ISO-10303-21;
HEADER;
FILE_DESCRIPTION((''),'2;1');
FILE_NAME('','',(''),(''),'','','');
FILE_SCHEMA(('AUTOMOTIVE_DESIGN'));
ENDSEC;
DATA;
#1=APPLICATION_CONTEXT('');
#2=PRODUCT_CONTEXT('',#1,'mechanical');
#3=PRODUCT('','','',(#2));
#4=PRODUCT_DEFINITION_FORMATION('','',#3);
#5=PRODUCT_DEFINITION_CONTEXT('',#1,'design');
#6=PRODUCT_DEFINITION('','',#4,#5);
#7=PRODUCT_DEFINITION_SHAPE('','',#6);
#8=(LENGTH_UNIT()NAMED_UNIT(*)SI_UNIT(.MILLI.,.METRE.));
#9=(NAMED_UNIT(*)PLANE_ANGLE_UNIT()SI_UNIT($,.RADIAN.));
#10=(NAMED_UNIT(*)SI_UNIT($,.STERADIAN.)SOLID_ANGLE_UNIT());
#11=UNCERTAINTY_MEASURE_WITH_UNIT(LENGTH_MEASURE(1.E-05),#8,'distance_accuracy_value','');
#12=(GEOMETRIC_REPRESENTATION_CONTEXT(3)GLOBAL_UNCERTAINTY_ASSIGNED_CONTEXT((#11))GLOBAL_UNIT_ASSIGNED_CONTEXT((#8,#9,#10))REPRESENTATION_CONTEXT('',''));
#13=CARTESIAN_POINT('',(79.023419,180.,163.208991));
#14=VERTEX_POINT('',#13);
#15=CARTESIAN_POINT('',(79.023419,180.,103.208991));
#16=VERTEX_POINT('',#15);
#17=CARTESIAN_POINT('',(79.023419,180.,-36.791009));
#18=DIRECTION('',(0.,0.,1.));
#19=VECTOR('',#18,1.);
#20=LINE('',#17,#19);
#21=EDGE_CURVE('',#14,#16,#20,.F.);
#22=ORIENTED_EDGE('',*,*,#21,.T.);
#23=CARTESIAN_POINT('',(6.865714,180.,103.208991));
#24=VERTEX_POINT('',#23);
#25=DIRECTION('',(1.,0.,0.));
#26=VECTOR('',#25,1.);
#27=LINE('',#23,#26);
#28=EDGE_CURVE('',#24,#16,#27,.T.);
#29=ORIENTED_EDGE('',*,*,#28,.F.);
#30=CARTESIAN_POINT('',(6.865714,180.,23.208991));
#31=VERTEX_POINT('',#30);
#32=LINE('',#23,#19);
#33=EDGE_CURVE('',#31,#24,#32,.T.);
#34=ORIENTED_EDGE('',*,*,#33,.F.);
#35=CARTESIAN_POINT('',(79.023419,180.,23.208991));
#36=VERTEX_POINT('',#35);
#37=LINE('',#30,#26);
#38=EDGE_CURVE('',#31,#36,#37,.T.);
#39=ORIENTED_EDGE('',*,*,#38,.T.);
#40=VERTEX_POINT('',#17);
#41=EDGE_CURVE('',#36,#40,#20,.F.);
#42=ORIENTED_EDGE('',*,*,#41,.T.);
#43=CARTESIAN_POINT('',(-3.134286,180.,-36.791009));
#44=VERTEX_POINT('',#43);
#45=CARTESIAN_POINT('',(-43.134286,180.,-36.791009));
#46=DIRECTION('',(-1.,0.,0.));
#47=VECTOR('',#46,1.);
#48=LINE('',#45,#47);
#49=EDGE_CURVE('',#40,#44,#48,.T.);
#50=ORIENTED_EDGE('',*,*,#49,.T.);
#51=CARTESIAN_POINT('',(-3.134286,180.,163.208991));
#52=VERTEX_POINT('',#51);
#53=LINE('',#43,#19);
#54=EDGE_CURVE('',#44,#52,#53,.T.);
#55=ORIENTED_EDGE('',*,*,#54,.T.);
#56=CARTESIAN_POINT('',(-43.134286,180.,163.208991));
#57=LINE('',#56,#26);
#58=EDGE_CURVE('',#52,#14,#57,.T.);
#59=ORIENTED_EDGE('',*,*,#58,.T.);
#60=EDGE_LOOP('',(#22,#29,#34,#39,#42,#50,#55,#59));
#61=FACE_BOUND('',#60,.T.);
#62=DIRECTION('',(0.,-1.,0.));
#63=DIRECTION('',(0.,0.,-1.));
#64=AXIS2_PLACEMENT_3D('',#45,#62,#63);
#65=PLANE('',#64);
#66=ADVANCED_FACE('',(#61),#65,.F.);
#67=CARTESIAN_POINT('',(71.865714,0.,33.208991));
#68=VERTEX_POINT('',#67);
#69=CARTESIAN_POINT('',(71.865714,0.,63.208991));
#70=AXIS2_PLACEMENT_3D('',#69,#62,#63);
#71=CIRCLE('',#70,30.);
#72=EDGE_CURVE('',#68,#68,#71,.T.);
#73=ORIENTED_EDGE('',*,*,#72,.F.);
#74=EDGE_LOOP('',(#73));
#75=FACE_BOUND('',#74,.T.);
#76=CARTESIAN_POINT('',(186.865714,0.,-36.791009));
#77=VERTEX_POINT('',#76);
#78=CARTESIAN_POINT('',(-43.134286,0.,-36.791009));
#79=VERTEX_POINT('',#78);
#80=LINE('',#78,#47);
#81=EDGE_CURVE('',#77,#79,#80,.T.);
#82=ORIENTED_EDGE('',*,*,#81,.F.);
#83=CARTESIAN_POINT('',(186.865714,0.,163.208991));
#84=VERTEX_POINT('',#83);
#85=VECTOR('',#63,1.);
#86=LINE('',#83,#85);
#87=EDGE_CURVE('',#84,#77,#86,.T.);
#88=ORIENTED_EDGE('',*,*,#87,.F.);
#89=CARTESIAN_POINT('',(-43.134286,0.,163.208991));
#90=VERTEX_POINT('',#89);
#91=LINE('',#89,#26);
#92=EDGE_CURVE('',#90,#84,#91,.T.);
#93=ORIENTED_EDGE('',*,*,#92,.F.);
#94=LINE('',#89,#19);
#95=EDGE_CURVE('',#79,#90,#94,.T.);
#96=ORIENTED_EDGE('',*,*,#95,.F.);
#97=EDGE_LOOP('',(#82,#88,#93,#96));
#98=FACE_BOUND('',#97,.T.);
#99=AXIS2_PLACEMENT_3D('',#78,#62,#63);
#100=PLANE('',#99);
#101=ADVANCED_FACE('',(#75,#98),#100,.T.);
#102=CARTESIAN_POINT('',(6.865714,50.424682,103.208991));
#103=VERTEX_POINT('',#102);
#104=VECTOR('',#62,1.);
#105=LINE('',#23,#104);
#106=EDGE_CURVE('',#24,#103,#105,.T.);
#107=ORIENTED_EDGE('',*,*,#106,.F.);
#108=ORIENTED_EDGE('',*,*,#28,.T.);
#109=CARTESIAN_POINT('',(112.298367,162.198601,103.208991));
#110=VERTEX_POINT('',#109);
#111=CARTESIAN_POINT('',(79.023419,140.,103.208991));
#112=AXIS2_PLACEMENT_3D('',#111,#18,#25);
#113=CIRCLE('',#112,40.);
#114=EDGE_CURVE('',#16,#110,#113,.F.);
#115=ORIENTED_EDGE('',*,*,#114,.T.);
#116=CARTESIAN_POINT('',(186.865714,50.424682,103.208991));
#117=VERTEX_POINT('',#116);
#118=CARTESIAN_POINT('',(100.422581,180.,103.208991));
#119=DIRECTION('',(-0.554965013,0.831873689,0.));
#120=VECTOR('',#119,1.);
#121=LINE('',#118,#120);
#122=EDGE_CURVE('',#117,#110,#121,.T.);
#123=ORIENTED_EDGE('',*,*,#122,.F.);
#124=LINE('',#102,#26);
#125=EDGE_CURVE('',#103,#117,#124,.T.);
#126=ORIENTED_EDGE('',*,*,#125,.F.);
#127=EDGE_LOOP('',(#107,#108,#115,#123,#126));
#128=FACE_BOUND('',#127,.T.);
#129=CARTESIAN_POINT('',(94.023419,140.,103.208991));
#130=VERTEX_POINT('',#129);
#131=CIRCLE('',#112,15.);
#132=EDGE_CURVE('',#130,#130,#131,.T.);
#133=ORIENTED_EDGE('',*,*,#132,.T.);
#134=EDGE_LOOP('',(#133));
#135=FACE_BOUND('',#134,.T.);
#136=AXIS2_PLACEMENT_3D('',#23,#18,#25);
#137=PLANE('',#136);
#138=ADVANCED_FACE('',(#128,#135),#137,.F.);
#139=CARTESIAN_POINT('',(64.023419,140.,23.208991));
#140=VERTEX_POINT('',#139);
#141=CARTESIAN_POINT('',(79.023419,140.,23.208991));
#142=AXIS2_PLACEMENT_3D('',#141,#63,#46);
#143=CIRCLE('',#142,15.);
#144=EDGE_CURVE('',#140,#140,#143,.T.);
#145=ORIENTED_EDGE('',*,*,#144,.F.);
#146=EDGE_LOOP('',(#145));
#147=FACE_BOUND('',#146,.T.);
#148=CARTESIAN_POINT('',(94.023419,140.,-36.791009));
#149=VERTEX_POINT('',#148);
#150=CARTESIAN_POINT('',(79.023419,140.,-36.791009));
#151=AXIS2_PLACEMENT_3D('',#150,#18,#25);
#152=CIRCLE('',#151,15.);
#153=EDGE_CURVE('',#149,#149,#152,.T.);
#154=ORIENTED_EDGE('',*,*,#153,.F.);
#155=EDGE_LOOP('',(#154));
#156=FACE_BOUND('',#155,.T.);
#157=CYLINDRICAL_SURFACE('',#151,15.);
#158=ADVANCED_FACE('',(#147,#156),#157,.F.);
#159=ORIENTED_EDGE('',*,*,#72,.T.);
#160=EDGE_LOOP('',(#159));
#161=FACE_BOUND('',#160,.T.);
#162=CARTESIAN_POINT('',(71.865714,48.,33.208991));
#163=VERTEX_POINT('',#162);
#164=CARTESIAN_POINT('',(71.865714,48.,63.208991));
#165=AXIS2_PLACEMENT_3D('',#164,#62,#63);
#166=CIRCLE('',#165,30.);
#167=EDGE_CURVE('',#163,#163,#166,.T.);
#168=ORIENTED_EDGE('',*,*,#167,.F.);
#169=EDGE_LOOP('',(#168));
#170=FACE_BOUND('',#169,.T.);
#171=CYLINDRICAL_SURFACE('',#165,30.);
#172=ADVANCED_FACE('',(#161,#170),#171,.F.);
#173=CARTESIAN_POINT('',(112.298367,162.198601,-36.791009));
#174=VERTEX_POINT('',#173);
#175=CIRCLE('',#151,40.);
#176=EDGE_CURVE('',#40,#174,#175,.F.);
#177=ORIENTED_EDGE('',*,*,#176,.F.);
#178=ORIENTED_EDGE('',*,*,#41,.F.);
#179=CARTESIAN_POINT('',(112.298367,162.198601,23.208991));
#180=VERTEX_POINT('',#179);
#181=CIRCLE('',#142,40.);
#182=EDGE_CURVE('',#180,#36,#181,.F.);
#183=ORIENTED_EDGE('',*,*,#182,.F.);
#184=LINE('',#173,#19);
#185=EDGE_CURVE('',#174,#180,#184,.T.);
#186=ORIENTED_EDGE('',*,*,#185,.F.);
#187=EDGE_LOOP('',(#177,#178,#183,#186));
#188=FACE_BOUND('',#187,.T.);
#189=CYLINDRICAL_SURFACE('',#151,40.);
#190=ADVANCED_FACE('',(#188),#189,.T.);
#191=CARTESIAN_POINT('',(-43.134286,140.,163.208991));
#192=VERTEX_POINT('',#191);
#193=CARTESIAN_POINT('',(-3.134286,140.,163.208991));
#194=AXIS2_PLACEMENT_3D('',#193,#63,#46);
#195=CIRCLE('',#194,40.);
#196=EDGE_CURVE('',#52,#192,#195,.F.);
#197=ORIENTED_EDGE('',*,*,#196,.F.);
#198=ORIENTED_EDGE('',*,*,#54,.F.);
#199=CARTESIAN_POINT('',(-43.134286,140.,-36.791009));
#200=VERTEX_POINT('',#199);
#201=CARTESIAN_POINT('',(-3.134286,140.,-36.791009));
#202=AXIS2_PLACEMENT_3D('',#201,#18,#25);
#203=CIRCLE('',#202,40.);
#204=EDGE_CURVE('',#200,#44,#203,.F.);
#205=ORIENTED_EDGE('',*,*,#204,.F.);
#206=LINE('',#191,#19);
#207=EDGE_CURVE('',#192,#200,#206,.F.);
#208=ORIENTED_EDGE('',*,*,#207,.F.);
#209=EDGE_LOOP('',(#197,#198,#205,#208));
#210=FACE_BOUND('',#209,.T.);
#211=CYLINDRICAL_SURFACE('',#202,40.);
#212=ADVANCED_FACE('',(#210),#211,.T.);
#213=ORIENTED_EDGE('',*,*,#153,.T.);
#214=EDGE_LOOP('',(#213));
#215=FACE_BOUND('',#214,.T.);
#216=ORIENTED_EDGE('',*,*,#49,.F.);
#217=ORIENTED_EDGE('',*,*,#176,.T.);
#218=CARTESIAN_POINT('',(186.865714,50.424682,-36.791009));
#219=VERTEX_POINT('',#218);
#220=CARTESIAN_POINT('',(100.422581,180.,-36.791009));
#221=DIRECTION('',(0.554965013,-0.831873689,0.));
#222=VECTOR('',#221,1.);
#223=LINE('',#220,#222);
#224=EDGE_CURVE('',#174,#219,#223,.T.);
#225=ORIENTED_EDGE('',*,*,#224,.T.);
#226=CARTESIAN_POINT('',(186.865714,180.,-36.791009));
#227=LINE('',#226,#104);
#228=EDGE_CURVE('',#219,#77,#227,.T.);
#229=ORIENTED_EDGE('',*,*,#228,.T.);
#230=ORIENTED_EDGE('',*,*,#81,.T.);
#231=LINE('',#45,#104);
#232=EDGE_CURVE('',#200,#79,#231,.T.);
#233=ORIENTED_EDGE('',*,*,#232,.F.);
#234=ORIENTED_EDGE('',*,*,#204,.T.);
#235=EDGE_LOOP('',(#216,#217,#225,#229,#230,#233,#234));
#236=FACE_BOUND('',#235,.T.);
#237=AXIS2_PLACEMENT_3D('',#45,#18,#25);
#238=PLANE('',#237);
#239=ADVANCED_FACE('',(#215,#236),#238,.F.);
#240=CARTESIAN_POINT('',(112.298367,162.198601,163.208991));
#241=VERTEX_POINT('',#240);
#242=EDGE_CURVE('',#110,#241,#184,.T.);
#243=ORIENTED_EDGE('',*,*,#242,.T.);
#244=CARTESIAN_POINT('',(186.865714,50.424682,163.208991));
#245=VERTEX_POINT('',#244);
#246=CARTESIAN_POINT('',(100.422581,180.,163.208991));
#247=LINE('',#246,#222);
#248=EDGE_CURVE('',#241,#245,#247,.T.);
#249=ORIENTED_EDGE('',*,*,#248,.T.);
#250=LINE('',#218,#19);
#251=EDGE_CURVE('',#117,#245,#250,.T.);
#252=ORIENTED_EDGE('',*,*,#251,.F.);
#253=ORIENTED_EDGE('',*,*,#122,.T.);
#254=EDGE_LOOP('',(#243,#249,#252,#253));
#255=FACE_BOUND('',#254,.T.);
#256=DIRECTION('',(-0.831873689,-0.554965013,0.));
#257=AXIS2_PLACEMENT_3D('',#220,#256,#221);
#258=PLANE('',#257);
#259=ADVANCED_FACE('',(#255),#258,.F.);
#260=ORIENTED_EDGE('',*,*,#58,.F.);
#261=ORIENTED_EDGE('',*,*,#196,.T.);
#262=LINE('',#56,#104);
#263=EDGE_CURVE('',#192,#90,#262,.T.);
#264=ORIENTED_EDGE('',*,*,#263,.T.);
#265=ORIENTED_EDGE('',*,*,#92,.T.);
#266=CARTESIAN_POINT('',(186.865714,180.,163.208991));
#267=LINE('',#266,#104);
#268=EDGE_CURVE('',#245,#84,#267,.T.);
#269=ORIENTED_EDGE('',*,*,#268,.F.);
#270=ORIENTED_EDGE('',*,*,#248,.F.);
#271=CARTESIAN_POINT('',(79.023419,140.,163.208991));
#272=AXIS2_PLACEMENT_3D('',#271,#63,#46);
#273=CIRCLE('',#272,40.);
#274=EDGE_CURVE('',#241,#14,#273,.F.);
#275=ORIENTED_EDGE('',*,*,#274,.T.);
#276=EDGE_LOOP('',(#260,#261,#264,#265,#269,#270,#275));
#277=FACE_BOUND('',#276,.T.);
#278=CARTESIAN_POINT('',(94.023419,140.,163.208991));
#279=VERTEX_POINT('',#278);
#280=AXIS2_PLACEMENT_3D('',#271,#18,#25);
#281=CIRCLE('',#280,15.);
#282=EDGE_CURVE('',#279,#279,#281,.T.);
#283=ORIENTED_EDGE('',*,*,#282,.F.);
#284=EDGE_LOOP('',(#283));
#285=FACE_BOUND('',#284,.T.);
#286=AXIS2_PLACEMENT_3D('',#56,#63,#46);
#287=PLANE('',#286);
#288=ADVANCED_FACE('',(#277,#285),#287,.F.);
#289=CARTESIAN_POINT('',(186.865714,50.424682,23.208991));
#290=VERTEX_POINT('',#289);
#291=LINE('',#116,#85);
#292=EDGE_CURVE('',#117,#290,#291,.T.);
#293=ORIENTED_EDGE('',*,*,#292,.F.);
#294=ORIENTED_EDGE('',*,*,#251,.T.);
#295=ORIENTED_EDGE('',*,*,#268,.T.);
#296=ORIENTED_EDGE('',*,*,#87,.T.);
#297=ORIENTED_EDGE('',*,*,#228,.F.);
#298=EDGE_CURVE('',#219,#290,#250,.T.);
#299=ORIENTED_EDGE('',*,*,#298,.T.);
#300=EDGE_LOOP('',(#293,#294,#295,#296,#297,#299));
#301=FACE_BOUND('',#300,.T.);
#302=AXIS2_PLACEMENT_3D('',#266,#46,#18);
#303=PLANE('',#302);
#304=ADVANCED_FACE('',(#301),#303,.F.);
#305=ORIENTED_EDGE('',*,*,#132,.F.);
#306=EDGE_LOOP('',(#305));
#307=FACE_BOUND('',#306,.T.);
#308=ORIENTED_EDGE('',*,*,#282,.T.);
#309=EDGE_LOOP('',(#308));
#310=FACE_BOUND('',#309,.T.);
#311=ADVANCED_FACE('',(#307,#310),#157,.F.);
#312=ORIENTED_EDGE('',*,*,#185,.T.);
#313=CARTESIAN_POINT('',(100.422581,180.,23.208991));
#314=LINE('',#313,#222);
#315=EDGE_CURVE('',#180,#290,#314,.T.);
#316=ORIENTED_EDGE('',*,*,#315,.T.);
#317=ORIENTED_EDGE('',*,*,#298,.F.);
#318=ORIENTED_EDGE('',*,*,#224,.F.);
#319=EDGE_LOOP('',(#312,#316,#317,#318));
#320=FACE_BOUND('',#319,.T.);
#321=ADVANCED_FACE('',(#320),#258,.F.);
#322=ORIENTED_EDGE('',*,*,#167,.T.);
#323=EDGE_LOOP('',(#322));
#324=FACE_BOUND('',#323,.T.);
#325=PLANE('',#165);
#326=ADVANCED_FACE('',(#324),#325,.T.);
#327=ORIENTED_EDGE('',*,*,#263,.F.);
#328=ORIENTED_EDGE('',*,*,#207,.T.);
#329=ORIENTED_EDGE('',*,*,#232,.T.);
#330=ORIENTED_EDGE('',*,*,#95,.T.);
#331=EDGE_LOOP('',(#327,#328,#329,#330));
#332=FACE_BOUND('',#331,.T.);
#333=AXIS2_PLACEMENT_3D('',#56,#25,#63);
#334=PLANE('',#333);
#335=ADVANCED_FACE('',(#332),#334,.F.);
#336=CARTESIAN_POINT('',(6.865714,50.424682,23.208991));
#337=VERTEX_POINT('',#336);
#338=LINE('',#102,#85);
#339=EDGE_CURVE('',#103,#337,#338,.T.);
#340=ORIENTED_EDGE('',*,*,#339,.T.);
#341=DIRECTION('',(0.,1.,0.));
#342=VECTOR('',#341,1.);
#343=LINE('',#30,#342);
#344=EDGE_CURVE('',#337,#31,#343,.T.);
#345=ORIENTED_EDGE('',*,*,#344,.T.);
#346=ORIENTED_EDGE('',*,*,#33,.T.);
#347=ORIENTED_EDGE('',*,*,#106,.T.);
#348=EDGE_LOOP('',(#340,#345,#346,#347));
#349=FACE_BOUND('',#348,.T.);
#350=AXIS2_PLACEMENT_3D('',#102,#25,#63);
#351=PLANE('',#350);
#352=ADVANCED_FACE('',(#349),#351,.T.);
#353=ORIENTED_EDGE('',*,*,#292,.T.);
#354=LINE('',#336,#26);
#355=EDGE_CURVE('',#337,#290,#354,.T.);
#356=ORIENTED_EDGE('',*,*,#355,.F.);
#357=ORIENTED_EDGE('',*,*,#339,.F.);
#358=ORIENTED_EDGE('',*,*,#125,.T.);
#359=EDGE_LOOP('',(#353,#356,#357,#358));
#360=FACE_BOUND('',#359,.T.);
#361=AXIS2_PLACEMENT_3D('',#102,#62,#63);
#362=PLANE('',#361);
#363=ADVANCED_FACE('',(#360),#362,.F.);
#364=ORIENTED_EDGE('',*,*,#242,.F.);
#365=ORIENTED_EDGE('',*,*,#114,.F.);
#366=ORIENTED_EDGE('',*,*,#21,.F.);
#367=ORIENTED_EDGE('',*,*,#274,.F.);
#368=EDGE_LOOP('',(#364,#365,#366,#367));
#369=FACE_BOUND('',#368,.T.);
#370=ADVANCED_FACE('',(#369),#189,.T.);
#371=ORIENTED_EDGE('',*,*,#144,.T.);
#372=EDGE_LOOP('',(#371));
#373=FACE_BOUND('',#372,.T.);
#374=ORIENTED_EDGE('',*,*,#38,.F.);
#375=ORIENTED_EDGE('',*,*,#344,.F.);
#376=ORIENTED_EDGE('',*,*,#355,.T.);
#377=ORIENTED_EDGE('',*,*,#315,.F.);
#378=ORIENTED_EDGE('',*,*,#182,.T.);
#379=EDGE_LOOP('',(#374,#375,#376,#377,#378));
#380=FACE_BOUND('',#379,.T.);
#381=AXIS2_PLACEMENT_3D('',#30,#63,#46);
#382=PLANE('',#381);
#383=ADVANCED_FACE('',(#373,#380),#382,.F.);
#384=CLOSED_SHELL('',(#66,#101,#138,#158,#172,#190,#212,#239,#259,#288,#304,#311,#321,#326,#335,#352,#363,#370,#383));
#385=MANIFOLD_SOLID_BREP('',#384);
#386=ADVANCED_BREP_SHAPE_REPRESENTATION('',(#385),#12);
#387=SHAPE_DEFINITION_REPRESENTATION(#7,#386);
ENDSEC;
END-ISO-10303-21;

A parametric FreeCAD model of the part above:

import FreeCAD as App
import Part
import Sketcher
from FreeCAD import Vector
Q = App.Units.Quantity


def edges_at(feature, points):
    """Names of the edges that pass closest to the given points."""
    edges = feature.Shape.Edges
    near = lambda p: min(range(len(edges)), key=lambda i: edges[i].distToShape(Part.Vertex(*p))[0])
    return sorted({f"Edge{near(p) + 1}" for p in points})


def add_polygon(sketch, points):
    """Adds a closed chain of lines whose ends are joined by coincident constraints."""
    first, n = sketch.GeometryCount, len(points)
    for a, b in zip(points, points[1:] + points[:1]):
        sketch.addGeometry(Part.LineSegment(App.Vector(*a, 0), App.Vector(*b, 0)), False)
    for i in range(n):
        sketch.addConstraint(Sketcher.Constraint("Coincident", first + i, 2, first + (i + 1) % n, 1))

doc = App.newDocument("Part")
body = doc.addObject("PartDesign::Body", "Body")

# Sketch on XZ plane
sketch1 = doc.addObject("Sketcher::SketchObject", "Sketch")
body.addObject(sketch1)
sketch1.AttachmentSupport = (doc.XZ_Plane, [""])
sketch1.MapMode = "FlatFace"
add_polygon(sketch1, [(-43.134286, -36.791009), (-43.134286, 163.208991), (186.865714, 163.208991), (186.865714, -36.791009)])  # lines 0-3
sketch1.addConstraint(Sketcher.Constraint("Vertical", 0))
sketch1.addConstraint(Sketcher.Constraint("Horizontal", 1))
sketch1.addConstraint(Sketcher.Constraint("Vertical", 2))
sketch1.addConstraint(Sketcher.Constraint("Horizontal", 3))
sketch1.addConstraint(Sketcher.Constraint("DistanceX", 1, 1, 1, 2, Q("230 mm")))
sketch1.addConstraint(Sketcher.Constraint("DistanceY", 0, 1, 0, 2, Q("200 mm")))
sketch1.addConstraint(Sketcher.Constraint("DistanceY", -1, 1, 0, 2, Q("163.208991 mm")))
sketch1.addConstraint(Sketcher.Constraint("DistanceX", 0, 2, -1, 1, Q("43.134286 mm")))
pad1 = doc.addObject("PartDesign::Pad", "Pad")
body.addObject(pad1)
pad1.Profile = sketch1
pad1.Length = 180
pad1.Reversed = True

# Sketch on XY plane
sketch2 = doc.addObject("Sketcher::SketchObject", "Sketch001")
body.addObject(sketch2)
sketch2.AttachmentSupport = (doc.XY_Plane, [""])
sketch2.MapMode = "FlatFace"
sketch2.AttachmentOffset = App.Placement(Vector(0, 0, 163.208991), App.Rotation())
add_polygon(sketch2, [(186.865714, 180), (100.422581, 180), (186.865714, 50.424682)])  # lines 0-2
sketch2.addConstraint(Sketcher.Constraint("Horizontal", 0))
sketch2.addConstraint(Sketcher.Constraint("Vertical", 2))
sketch2.addConstraint(Sketcher.Constraint("DistanceY", -1, 1, 0, 2, Q("180 mm")))
sketch2.addConstraint(Sketcher.Constraint("DistanceX", 0, 2, 0, 1, Q("86.443133 mm")))
sketch2.addConstraint(Sketcher.Constraint("DistanceY", 2, 1, 2, 2, Q("129.575318 mm")))
sketch2.addConstraint(Sketcher.Constraint("DistanceX", -1, 1, 0, 2, Q("100.422581 mm")))
pocket1 = doc.addObject("PartDesign::Pocket", "Pocket")
body.addObject(pocket1)
pocket1.Profile = sketch2
pocket1.Length = 200
doc.recompute()

fillet = doc.addObject("PartDesign::Fillet", "Fillet")
body.addObject(fillet)
fillet.Base = (pocket1, edges_at(pocket1, [(100.423, 180, 63.209), (-43.134, 180, 63.209)]))
fillet.Radius = 40

# Sketch on XZ plane
sketch3 = doc.addObject("Sketcher::SketchObject", "Sketch002")
body.addObject(sketch3)
sketch3.AttachmentSupport = (doc.XZ_Plane, [""])
sketch3.MapMode = "FlatFace"
sketch3.addGeometry(Part.Circle(Vector(71.865714, 63.208991, 0), Vector(0, 0, 1), 30), False)
sketch3.addConstraint(Sketcher.Constraint("Diameter", 0, Q("60 mm")))
sketch3.addConstraint(Sketcher.Constraint("DistanceY", -1, 1, 0, 3, Q("63.208991 mm")))
sketch3.addConstraint(Sketcher.Constraint("DistanceX", -1, 1, 0, 3, Q("71.865714 mm")))
pocket2 = doc.addObject("PartDesign::Pocket", "Pocket001")
body.addObject(pocket2)
pocket2.Profile = sketch3
pocket2.Length = 48

# Sketch on YZ plane
sketch4 = doc.addObject("Sketcher::SketchObject", "Sketch003")
body.addObject(sketch4)
sketch4.AttachmentSupport = (doc.YZ_Plane, [""])
sketch4.MapMode = "FlatFace"
sketch4.AttachmentOffset = App.Placement(Vector(0, 0, 186.865714), App.Rotation())
add_polygon(sketch4, [(180, 103.208991), (50.424682, 103.208991), (50.424682, 23.208991), (180, 23.208991)])  # lines 0-3
sketch4.addConstraint(Sketcher.Constraint("Horizontal", 0))
sketch4.addConstraint(Sketcher.Constraint("Vertical", 1))
sketch4.addConstraint(Sketcher.Constraint("Horizontal", 2))
sketch4.addConstraint(Sketcher.Constraint("Vertical", 3))
sketch4.addConstraint(Sketcher.Constraint("DistanceY", 1, 2, 1, 1, Q("80 mm")))
sketch4.addConstraint(Sketcher.Constraint("DistanceX", -1, 1, 2, 2, Q("180 mm")))
sketch4.addConstraint(Sketcher.Constraint("DistanceX", 0, 2, 0, 1, Q("129.575318 mm")))
sketch4.addConstraint(Sketcher.Constraint("DistanceY", -1, 1, 0, 2, Q("103.208991 mm")))
pocket3 = doc.addObject("PartDesign::Pocket", "Pocket002")
body.addObject(pocket3)
pocket3.Profile = sketch4
pocket3.Length = 180

# Sketch on XY plane
sketch5 = doc.addObject("Sketcher::SketchObject", "Sketch004")
body.addObject(sketch5)
sketch5.AttachmentSupport = (doc.XY_Plane, [""])
sketch5.MapMode = "FlatFace"
sketch5.AttachmentOffset = App.Placement(Vector(0, 0, 163.208991), App.Rotation())
sketch5.addGeometry(Part.Circle(Vector(79.023419, 140, 0), Vector(0, 0, 1), 15), False)
sketch5.addConstraint(Sketcher.Constraint("Diameter", 0, Q("30 mm")))
sketch5.addConstraint(Sketcher.Constraint("DistanceY", -1, 1, 0, 3, Q("140 mm")))
sketch5.addConstraint(Sketcher.Constraint("DistanceX", -1, 1, 0, 3, Q("79.023419 mm")))
pocket4 = doc.addObject("PartDesign::Pocket", "Pocket003")
body.addObject(pocket4)
pocket4.Profile = sketch5
pocket4.Length = 200

doc.recompute()
